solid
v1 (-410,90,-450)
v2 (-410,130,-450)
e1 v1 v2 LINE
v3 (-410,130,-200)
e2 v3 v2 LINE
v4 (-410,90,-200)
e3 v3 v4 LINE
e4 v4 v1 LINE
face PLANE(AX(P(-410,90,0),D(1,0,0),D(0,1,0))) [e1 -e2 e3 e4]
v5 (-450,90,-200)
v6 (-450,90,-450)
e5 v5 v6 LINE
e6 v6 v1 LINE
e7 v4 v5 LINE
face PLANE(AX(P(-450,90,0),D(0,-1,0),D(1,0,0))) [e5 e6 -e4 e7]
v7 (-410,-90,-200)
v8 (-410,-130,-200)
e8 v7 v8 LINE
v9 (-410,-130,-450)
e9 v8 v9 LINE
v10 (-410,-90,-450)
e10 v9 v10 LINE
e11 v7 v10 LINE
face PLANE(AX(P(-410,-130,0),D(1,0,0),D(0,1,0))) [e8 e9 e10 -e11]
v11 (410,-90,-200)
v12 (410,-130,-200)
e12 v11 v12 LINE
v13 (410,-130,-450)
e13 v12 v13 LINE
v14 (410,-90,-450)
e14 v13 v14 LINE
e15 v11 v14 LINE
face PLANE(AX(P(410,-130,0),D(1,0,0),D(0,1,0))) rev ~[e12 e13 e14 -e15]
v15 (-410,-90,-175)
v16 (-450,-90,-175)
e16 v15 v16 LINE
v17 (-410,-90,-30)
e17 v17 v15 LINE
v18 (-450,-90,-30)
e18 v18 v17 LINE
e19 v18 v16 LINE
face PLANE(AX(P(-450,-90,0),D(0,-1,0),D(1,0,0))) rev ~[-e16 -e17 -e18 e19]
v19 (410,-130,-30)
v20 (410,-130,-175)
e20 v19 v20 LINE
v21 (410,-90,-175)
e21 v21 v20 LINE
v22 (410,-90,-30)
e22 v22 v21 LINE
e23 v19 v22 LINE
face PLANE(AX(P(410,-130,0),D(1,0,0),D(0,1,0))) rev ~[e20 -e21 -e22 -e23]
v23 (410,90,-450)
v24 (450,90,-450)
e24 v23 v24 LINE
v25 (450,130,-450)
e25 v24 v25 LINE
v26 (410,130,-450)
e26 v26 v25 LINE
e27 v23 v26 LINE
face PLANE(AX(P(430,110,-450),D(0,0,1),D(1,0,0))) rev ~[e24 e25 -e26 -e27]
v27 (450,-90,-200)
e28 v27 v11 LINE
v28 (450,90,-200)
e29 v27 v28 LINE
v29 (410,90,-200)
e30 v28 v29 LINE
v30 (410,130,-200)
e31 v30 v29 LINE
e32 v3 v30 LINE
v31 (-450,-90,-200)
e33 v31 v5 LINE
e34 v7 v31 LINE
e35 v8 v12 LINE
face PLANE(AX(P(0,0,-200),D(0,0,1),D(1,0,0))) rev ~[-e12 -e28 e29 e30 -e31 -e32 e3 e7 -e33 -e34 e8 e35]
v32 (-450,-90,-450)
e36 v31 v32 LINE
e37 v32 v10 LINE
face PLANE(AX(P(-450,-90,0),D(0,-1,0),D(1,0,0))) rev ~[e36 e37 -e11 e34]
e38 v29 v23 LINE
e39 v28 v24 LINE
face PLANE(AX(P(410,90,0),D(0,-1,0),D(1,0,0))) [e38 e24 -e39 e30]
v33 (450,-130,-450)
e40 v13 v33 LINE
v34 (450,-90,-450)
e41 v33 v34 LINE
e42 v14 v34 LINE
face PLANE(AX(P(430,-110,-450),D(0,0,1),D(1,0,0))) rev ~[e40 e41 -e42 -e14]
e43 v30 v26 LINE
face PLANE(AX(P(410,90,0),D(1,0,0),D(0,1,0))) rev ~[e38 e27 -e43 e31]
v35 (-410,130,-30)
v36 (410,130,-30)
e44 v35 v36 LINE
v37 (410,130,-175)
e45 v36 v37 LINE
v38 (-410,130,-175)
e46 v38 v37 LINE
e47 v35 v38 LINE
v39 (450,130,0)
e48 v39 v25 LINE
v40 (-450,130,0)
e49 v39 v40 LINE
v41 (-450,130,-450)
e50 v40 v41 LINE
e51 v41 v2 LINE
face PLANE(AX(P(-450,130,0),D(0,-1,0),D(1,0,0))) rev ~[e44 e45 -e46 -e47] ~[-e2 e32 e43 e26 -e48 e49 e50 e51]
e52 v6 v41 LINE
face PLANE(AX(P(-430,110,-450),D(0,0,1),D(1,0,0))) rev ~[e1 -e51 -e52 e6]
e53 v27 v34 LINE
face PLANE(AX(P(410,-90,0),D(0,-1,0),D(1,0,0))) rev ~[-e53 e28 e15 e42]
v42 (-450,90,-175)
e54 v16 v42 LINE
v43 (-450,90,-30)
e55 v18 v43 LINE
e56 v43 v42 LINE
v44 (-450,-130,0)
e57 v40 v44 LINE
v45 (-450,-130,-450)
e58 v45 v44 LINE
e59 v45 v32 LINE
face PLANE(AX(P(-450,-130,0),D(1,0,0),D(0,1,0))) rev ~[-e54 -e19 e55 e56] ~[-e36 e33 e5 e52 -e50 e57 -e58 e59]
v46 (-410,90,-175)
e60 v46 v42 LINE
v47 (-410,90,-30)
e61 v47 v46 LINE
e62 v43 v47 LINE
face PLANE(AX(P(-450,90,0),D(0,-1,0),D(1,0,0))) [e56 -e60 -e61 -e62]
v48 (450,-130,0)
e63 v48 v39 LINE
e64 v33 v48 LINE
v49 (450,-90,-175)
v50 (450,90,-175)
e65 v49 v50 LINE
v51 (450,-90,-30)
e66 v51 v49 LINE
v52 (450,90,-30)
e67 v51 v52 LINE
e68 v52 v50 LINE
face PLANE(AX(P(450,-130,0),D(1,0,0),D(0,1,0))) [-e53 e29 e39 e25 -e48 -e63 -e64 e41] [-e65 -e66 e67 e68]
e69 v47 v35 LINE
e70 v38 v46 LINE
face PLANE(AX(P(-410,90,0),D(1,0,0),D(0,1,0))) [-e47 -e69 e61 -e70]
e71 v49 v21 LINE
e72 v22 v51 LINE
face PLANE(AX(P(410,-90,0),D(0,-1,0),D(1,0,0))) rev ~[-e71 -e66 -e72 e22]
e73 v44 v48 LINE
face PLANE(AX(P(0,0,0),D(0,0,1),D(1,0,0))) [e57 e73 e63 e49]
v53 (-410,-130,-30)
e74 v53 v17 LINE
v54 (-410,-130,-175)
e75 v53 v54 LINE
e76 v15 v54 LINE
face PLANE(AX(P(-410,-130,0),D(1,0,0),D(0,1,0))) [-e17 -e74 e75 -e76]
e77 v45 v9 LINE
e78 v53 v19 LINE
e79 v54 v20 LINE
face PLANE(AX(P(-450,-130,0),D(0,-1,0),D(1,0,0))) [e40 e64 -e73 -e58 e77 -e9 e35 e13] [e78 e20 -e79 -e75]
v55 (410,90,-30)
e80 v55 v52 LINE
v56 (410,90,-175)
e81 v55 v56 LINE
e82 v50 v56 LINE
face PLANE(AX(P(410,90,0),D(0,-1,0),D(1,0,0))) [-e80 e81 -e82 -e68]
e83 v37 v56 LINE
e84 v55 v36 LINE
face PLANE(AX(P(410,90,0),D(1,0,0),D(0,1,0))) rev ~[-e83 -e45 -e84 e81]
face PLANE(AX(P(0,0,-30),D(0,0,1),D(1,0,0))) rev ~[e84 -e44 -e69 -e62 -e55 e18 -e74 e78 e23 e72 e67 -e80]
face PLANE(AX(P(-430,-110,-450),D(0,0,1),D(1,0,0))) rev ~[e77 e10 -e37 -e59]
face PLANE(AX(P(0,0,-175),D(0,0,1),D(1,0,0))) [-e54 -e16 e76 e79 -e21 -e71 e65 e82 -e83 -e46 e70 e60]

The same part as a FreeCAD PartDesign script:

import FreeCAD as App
import Part
import Sketcher
Q = App.Units.Quantity

doc = App.newDocument("Part")
body = doc.addObject("PartDesign::Body", "Body")

sketch1 = doc.addObject("Sketcher::SketchObject", "Sketch")
body.addObject(sketch1)
sketch1.AttachmentSupport = (doc.XY_Plane, [""])
sketch1.MapMode = "FlatFace"
sketch1.addGeometry(Part.LineSegment(App.Vector(-450, 130, 0), App.Vector(-450, -130, 0)), False)
sketch1.addGeometry(Part.LineSegment(App.Vector(-450, -130, 0), App.Vector(450, -130, 0)), False)
sketch1.addGeometry(Part.LineSegment(App.Vector(450, -130, 0), App.Vector(450, 130, 0)), False)
sketch1.addGeometry(Part.LineSegment(App.Vector(450, 130, 0), App.Vector(-450, 130, 0)), False)
sketch1.addConstraint(Sketcher.Constraint("Coincident", 0, 2, 1, 1))
sketch1.addConstraint(Sketcher.Constraint("Coincident", 1, 2, 2, 1))
sketch1.addConstraint(Sketcher.Constraint("Coincident", 2, 2, 3, 1))
sketch1.addConstraint(Sketcher.Constraint("Coincident", 3, 2, 0, 1))
sketch1.addConstraint(Sketcher.Constraint("Vertical", 0))
sketch1.addConstraint(Sketcher.Constraint("Horizontal", 1))
sketch1.addConstraint(Sketcher.Constraint("Vertical", 2))
sketch1.addConstraint(Sketcher.Constraint("Horizontal", 3))
sketch1.addConstraint(Sketcher.Constraint("Symmetric", 0, 2, 2, 2, -1, 1))
sketch1.addConstraint(Sketcher.Constraint("DistanceX", 1, 1, 1, 2, Q("900 mm")))
sketch1.addConstraint(Sketcher.Constraint("DistanceY", 0, 2, 0, 1, Q("260 mm")))
pad1 = doc.addObject("PartDesign::Pad", "Pad")
body.addObject(pad1)
pad1.Profile = sketch1
pad1.Length = 30
pad1.Reversed = True

sketch2 = doc.addObject("Sketcher::SketchObject", "Sketch001")
body.addObject(sketch2)
sketch2.AttachmentSupport = (doc.XY_Plane, [""])
sketch2.MapMode = "FlatFace"
sketch2.addGeometry(Part.LineSegment(App.Vector(410, 130, 0), App.Vector(410, 90, 0)), False)
sketch2.addGeometry(Part.LineSegment(App.Vector(410, 90, 0), App.Vector(450, 90, 0)), False)
sketch2.addGeometry(Part.LineSegment(App.Vector(450, 90, 0), App.Vector(450, 130, 0)), False)
sketch2.addGeometry(Part.LineSegment(App.Vector(450, 130, 0), App.Vector(410, 130, 0)), False)
sketch2.addGeometry(Part.LineSegment(App.Vector(-450, 130, 0), App.Vector(-450, 90, 0)), False)
sketch2.addGeometry(Part.LineSegment(App.Vector(-450, 90, 0), App.Vector(-410, 90, 0)), False)
sketch2.addGeometry(Part.LineSegment(App.Vector(-410, 90, 0), App.Vector(-410, 130, 0)), False)
sketch2.addGeometry(Part.LineSegment(App.Vector(-410, 130, 0), App.Vector(-450, 130, 0)), False)
sketch2.addGeometry(Part.LineSegment(App.Vector(-450, -90, 0), App.Vector(-450, -130, 0)), False)
sketch2.addGeometry(Part.LineSegment(App.Vector(-450, -130, 0), App.Vector(-410, -130, 0)), False)
sketch2.addGeometry(Part.LineSegment(App.Vector(-410, -130, 0), App.Vector(-410, -90, 0)), False)
sketch2.addGeometry(Part.LineSegment(App.Vector(-410, -90, 0), App.Vector(-450, -90, 0)), False)
sketch2.addGeometry(Part.LineSegment(App.Vector(410, -90, 0), App.Vector(410, -130, 0)), False)
sketch2.addGeometry(Part.LineSegment(App.Vector(410, -130, 0), App.Vector(450, -130, 0)), False)
sketch2.addGeometry(Part.LineSegment(App.Vector(450, -130, 0), App.Vector(450, -90, 0)), False)
sketch2.addGeometry(Part.LineSegment(App.Vector(450, -90, 0), App.Vector(410, -90, 0)), False)
sketch2.addConstraint(Sketcher.Constraint("Coincident", 0, 2, 1, 1))
sketch2.addConstraint(Sketcher.Constraint("Coincident", 1, 2, 2, 1))
sketch2.addConstraint(Sketcher.Constraint("Coincident", 2, 2, 3, 1))
sketch2.addConstraint(Sketcher.Constraint("Coincident", 3, 2, 0, 1))
sketch2.addConstraint(Sketcher.Constraint("Coincident", 4, 2, 5, 1))
sketch2.addConstraint(Sketcher.Constraint("Coincident", 5, 2, 6, 1))
sketch2.addConstraint(Sketcher.Constraint("Coincident", 6, 2, 7, 1))
sketch2.addConstraint(Sketcher.Constraint("Coincident", 7, 2, 4, 1))
sketch2.addConstraint(Sketcher.Constraint("Coincident", 8, 2, 9, 1))
sketch2.addConstraint(Sketcher.Constraint("Coincident", 9, 2, 10, 1))
sketch2.addConstraint(Sketcher.Constraint("Coincident", 10, 2, 11, 1))
sketch2.addConstraint(Sketcher.Constraint("Coincident", 11, 2, 8, 1))
sketch2.addConstraint(Sketcher.Constraint("Coincident", 12, 2, 13, 1))
sketch2.addConstraint(Sketcher.Constraint("Coincident", 13, 2, 14, 1))
sketch2.addConstraint(Sketcher.Constraint("Coincident", 14, 2, 15, 1))
sketch2.addConstraint(Sketcher.Constraint("Coincident", 15, 2, 12, 1))
sketch2.addConstraint(Sketcher.Constraint("Vertical", 0))
sketch2.addConstraint(Sketcher.Constraint("Horizontal", 1))
sketch2.addConstraint(Sketcher.Constraint("Vertical", 2))
sketch2.addConstraint(Sketcher.Constraint("Horizontal", 3))
sketch2.addConstraint(Sketcher.Constraint("Vertical", 4))
sketch2.addConstraint(Sketcher.Constraint("Horizontal", 5))
sketch2.addConstraint(Sketcher.Constraint("Vertical", 6))
sketch2.addConstraint(Sketcher.Constraint("Horizontal", 7))
sketch2.addConstraint(Sketcher.Constraint("Vertical", 8))
sketch2.addConstraint(Sketcher.Constraint("Horizontal", 9))
sketch2.addConstraint(Sketcher.Constraint("Vertical", 10))
sketch2.addConstraint(Sketcher.Constraint("Horizontal", 11))
sketch2.addConstraint(Sketcher.Constraint("Vertical", 12))
sketch2.addConstraint(Sketcher.Constraint("Horizontal", 13))
sketch2.addConstraint(Sketcher.Constraint("Vertical", 14))
sketch2.addConstraint(Sketcher.Constraint("Horizontal", 15))
sketch2.addConstraint(Sketcher.Constraint("Symmetric", 2, 2, 8, 2, -1, 1))
sketch2.addConstraint(Sketcher.Constraint("Symmetric", 0, 2, 10, 2, -1, 1))
sketch2.addConstraint(Sketcher.Constraint("Symmetric", 6, 2, 12, 2, -1, 1))
sketch2.addConstraint(Sketcher.Constraint("Symmetric", 4, 2, 14, 2, -1, 1))
sketch2.addConstraint(Sketcher.Constraint("Symmetric", 1, 2, 4, 2, -2))
sketch2.addConstraint(Sketcher.Constraint("Symmetric", 3, 2, 6, 2, -2))
sketch2.addConstraint(Sketcher.Constraint("Equal", 15, 0))
sketch2.addConstraint(Sketcher.Constraint("DistanceX", 1, 1, 1, 2, Q("40 mm")))
sketch2.addConstraint(Sketcher.Constraint("DistanceX", -1, 1, 0, 2, Q("410 mm")))
sketch2.addConstraint(Sketcher.Constraint("DistanceY", -1, 1, 0, 2, Q("90 mm")))
pad2 = doc.addObject("PartDesign::Pad", "Pad001")
body.addObject(pad2)
pad2.Profile = sketch2
pad2.Length = 450
pad2.Reversed = True

sketch3 = doc.addObject("Sketcher::SketchObject", "Sketch002")
body.addObject(sketch3)
sketch3.AttachmentSupport = (doc.XY_Plane, [""])
sketch3.MapMode = "FlatFace"
sketch3.AttachmentOffset = App.Placement(App.Vector(0, 0, -200), App.Rotation())
sketch3.addGeometry(Part.LineSegment(App.Vector(-450, 130, 0), App.Vector(-450, -130, 0)), False)
sketch3.addGeometry(Part.LineSegment(App.Vector(-450, -130, 0), App.Vector(450, -130, 0)), False)
sketch3.addGeometry(Part.LineSegment(App.Vector(450, -130, 0), App.Vector(450, 130, 0)), False)
sketch3.addGeometry(Part.LineSegment(App.Vector(450, 130, 0), App.Vector(-450, 130, 0)), False)
sketch3.addConstraint(Sketcher.Constraint("Coincident", 0, 2, 1, 1))
sketch3.addConstraint(Sketcher.Constraint("Coincident", 1, 2, 2, 1))
sketch3.addConstraint(Sketcher.Constraint("Coincident", 2, 2, 3, 1))
sketch3.addConstraint(Sketcher.Constraint("Coincident", 3, 2, 0, 1))
sketch3.addConstraint(Sketcher.Constraint("Vertical", 0))
sketch3.addConstraint(Sketcher.Constraint("Horizontal", 1))
sketch3.addConstraint(Sketcher.Constraint("Vertical", 2))
sketch3.addConstraint(Sketcher.Constraint("Horizontal", 3))
sketch3.addConstraint(Sketcher.Constraint("Symmetric", 0, 2, 2, 2, -1, 1))
sketch3.addConstraint(Sketcher.Constraint("DistanceX", 1, 1, 1, 2, Q("900 mm")))
sketch3.addConstraint(Sketcher.Constraint("DistanceY", 0, 2, 0, 1, Q("260 mm")))
pad3 = doc.addObject("PartDesign::Pad", "Pad002")
body.addObject(pad3)
pad3.Profile = sketch3
pad3.Length = 25

doc.recompute()
